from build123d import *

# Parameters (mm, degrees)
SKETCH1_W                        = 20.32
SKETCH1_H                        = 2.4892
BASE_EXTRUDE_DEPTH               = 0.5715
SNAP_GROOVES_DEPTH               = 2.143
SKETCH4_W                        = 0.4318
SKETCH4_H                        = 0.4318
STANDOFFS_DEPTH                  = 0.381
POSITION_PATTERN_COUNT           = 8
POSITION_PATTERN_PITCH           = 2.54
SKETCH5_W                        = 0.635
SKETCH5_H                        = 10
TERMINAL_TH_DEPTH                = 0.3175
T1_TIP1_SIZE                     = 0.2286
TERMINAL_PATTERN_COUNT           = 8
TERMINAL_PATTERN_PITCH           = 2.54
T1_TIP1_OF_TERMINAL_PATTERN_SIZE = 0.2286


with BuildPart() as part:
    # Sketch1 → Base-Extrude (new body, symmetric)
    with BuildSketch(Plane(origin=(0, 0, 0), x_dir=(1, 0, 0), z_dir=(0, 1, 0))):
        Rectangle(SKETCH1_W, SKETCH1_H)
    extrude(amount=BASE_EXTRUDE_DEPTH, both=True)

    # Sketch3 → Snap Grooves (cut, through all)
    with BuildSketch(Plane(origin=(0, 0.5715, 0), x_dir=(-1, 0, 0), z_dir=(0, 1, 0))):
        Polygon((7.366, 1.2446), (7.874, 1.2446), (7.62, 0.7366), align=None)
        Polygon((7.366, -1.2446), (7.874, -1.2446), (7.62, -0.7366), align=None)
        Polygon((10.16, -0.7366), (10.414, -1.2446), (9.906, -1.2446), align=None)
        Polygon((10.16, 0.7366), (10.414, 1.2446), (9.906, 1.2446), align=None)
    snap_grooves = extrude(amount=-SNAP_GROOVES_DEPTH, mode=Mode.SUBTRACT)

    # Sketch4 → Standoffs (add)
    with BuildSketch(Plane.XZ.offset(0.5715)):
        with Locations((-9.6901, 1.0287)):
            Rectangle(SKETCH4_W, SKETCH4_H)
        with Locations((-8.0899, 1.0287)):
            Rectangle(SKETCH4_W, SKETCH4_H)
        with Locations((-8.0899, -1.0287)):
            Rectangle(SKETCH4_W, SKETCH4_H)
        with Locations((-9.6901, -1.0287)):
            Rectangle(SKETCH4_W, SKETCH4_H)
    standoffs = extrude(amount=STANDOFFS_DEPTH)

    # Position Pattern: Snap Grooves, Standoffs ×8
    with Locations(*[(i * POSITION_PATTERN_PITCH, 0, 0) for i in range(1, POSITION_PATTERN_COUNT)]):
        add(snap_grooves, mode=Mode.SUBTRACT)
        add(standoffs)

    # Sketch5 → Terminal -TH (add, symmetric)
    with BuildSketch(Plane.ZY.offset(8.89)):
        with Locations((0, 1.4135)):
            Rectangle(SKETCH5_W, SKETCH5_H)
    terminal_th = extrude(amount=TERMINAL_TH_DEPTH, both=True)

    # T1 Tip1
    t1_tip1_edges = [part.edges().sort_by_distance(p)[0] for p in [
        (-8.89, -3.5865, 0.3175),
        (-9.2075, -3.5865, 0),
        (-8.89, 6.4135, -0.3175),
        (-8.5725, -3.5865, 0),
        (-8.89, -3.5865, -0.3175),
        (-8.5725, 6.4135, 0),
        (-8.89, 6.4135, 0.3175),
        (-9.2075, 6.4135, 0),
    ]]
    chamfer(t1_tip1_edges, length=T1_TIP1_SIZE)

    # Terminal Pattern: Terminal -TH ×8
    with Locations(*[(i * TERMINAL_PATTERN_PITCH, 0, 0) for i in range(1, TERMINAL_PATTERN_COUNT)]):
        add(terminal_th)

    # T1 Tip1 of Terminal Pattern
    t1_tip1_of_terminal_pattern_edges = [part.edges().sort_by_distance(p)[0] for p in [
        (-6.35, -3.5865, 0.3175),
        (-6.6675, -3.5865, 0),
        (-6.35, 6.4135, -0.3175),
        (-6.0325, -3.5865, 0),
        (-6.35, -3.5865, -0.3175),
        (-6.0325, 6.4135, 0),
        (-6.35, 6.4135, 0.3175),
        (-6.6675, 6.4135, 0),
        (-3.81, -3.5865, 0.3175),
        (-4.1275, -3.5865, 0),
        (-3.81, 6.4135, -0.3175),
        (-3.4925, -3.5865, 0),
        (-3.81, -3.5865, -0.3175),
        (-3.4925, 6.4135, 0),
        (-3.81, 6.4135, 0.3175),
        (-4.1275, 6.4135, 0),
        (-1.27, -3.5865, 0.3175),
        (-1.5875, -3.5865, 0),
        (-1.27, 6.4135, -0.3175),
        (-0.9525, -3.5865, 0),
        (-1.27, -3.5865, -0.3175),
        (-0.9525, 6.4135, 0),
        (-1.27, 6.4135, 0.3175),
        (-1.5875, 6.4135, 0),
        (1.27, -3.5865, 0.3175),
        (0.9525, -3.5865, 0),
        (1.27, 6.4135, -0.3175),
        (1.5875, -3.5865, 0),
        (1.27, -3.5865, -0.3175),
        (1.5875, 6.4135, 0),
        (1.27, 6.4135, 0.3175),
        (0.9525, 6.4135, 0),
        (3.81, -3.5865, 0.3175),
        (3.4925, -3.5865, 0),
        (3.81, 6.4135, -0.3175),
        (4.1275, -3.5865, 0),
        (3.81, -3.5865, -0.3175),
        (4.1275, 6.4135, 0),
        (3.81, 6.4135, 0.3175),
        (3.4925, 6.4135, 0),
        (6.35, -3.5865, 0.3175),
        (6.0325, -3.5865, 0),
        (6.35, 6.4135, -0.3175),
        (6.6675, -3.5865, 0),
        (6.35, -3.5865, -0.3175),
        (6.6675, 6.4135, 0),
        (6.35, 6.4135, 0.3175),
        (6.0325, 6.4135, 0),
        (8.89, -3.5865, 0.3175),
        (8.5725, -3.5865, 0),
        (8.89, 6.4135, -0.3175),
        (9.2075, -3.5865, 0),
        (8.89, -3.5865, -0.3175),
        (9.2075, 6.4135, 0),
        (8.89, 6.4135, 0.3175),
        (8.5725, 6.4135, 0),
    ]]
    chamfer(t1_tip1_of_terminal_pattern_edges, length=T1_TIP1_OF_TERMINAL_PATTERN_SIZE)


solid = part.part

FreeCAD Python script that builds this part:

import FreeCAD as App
import Part
import Sketcher

V = App.Vector
Q = App.Units.Quantity


def edges_at(feature, points):
    """Names of the edges that pass closest to the given points."""
    edges = feature.Shape.Edges
    near = lambda p: min(range(len(edges)), key=lambda i: edges[i].distToShape(Part.Vertex(*p))[0])
    return sorted({f"Edge{near(p) + 1}" for p in points})


def add_polygon(sketch, points):
    """Adds a closed chain of lines whose ends are joined by coincident constraints."""
    first, n = sketch.GeometryCount, len(points)
    for a, b in zip(points, points[1:] + points[:1]):
        sketch.addGeometry(Part.LineSegment(App.Vector(*a, 0), App.Vector(*b, 0)), False)
    for i in range(n):
        sketch.addConstraint(Sketcher.Constraint("Coincident", first + i, 2, first + (i + 1) % n, 1))

doc = App.newDocument("Part")
body = doc.addObject("PartDesign::Body", "Body")

sketch1 = doc.addObject("Sketcher::SketchObject", "Sketch")
body.addObject(sketch1)
sketch1.AttachmentSupport = (doc.XZ_Plane, [""])
sketch1.MapMode = "FlatFace"
add_polygon(sketch1, [(-10.2, -1.2), (-10.2, 1.2), (10.2, 1.2), (10.2, -1.2)])
sketch1.addConstraint([
    Sketcher.Constraint("Vertical", 0),
    Sketcher.Constraint("Horizontal", 1),
    Sketcher.Constraint("Vertical", 2),
    Sketcher.Constraint("Horizontal", 3),
    Sketcher.Constraint("Symmetric", 0, 2, 2, 2, -1, 1),
    Sketcher.Constraint("DistanceX", 1, 1, 1, 2, Q("0.8 in")),
    Sketcher.Constraint("DistanceY", 0, 1, 0, 2, Q("0.098 in")),
])
pad1 = doc.addObject("PartDesign::Pad", "Pad")
body.addObject(pad1)
pad1.Profile = sketch1
pad1.Length = Q("0.045 in")
pad1.Midplane = True

sketch2 = doc.addObject("Sketcher::SketchObject", "Sketch001")
body.addObject(sketch2)
sketch2.AttachmentSupport = (doc.XZ_Plane, [""])
sketch2.MapMode = "FlatFace"
sketch2.AttachmentOffset = App.Placement(V(0, 0, -0.0225 * 25.4), App.Rotation())
add_polygon(sketch2, [(-7.9, 1.2), (-7.4, 1.2), (-7.6, 0.7)])
add_polygon(sketch2, [(-7.4, -1.2), (-7.9, -1.2), (-7.6, -0.7)])
add_polygon(sketch2, [(-10.4, -1.2), (-10.2, -0.7), (-9.9, -1.2)])
add_polygon(sketch2, [(-10.2, 0.7), (-10.4, 1.2), (-9.9, 1.2)])
sketch2.addConstraint([
    Sketcher.Constraint("Horizontal", 0),
    Sketcher.Constraint("Horizontal", 3),
    Sketcher.Constraint("Horizontal", 8),
    Sketcher.Constraint("Horizontal", 10),
    Sketcher.Constraint("Symmetric", 2, 2, 3, 2, -1),
    Sketcher.Constraint("Symmetric", 1, 2, 4, 2, -1),
    Sketcher.Constraint("Symmetric", 8, 2, 9, 2, -1),
    Sketcher.Constraint("Symmetric", 6, 2, 11, 2, -1),
    Sketcher.Constraint("Parallel", 1, 4),
    Sketcher.Constraint("Parallel", 2, 5),
    Sketcher.Constraint("Parallel", 4, 6),
    Sketcher.Constraint("Parallel", 5, 7),
    Sketcher.Constraint("Parallel", 6, 11),
    Sketcher.Constraint("Horizontal", 4, 2, 6, 2),
    Sketcher.Constraint("Horizontal", 5, 2, 7, 2),
    Sketcher.Constraint("DistanceX", 0, 1, 0, 2, Q("0.02 in")),
    Sketcher.Constraint("DistanceX", 1, 2, -1, 1, Q("0.3 in")),
    Sketcher.Constraint("DistanceX", 6, 2, -1, 1, Q("0.4 in")),
    Sketcher.Constraint("DistanceY", 1, 2, 0, 2, Q("0.02 in")),
    Sketcher.Constraint("DistanceY", -1, 1, 0, 2, Q("0.049 in")),
])
pocket1 = doc.addObject("PartDesign::Pocket", "Pocket")
body.addObject(pocket1)
pocket1.Profile = sketch2
pocket1.Type = "ThroughAll"
pocket1.Reversed = True

sketch3 = doc.addObject("Sketcher::SketchObject", "Sketch002")
body.addObject(sketch3)
sketch3.AttachmentSupport = (doc.XZ_Plane, [""])
sketch3.MapMode = "FlatFace"
sketch3.AttachmentOffset = App.Placement(V(0, 0, 0.0225 * 25.4), App.Rotation())
add_polygon(sketch3, [(-9.91, 1.24), (-9.91, 0.81), (-9.47, 0.81), (-9.47, 1.24)])
add_polygon(sketch3, [(-8.31, 1.24), (-8.31, 0.81), (-7.87, 0.81), (-7.87, 1.24)])
add_polygon(sketch3, [(-8.31, -0.81), (-8.31, -1.24), (-7.87, -1.24), (-7.87, -0.81)])
add_polygon(sketch3, [(-9.91, -0.81), (-9.91, -1.24), (-9.47, -1.24), (-9.47, -0.81)])
sketch3.addConstraint([
    Sketcher.Constraint("Vertical", 0),
    Sketcher.Constraint("Horizontal", 1),
    Sketcher.Constraint("Vertical", 2),
    Sketcher.Constraint("Horizontal", 3),
    Sketcher.Constraint("Vertical", 4),
    Sketcher.Constraint("Horizontal", 5),
    Sketcher.Constraint("Vertical", 6),
    Sketcher.Constraint("Horizontal", 7),
    Sketcher.Constraint("Vertical", 8),
    Sketcher.Constraint("Horizontal", 9),
    Sketcher.Constraint("Vertical", 10),
    Sketcher.Constraint("Horizontal", 11),
    Sketcher.Constraint("Vertical", 12),
    Sketcher.Constraint("Horizontal", 13),
    Sketcher.Constraint("Vertical", 14),
    Sketcher.Constraint("Horizontal", 15),
    Sketcher.Constraint("Symmetric", 7, 2, 8, 2, -1),
    Sketcher.Constraint("Symmetric", 5, 2, 10, 2, -1),
    Sketcher.Constraint("Symmetric", 3, 2, 12, 2, -1),
    Sketcher.Constraint("Symmetric", 1, 2, 14, 2, -1),
    Sketcher.Constraint("Horizontal", 1, 2, 4, 2),
    Sketcher.Constraint("Horizontal", 3, 2, 6, 2),
    Sketcher.Constraint("Equal", 3, 5),
    Sketcher.Constraint("Equal", 15, 0),
    Sketcher.Constraint("DistanceX", 1, 1, 1, 2, Q("0.017 in")),
    Sketcher.Constraint("DistanceX", 0, 2, -1, 1, Q("0.39 in")),
    Sketcher.Constraint("DistanceX", 5, 2, -1, 1, Q("0.31 in")),
    Sketcher.Constraint("DistanceY", -1, 1, 0, 2, Q("0.032 in")),
])
pad2 = doc.addObject("PartDesign::Pad", "Pad001")
body.addObject(pad2)
pad2.Profile = sketch3
pad2.Length = Q("0.015 in")
doc.recompute()

linearpattern = doc.addObject("PartDesign::LinearPattern", "LinearPattern")
body.addObject(linearpattern)
linearpattern.Originals = [pocket1, pad2]
linearpattern.Direction = (doc.X_Axis, [""])
linearpattern.Mode = "offset"
linearpattern.Offset = Q("0.1 in")
linearpattern.Occurrences = 8
body.Tip = linearpattern

sketch4 = doc.addObject("Sketcher::SketchObject", "Sketch003")
body.addObject(sketch4)
sketch4.AttachmentSupport = (doc.YZ_Plane, [""])
sketch4.MapMode = "FlatFace"
sketch4.AttachmentOffset = App.Placement(V(0, 0, -0.35 * 25.4), App.Rotation())
add_polygon(sketch4, [(6.4, -0.3), (-3.6, -0.3), (-3.6, 0.3), (6.4, 0.3)])
sketch4.addConstraint([
    Sketcher.Constraint("Horizontal", 0),
    Sketcher.Constraint("Vertical", 1),
    Sketcher.Constraint("Horizontal", 2),
    Sketcher.Constraint("Vertical", 3),
    Sketcher.Constraint("DistanceY", 1, 1, 1, 2, Q("0.025 in")),
    Sketcher.Constraint("DistanceX", 0, 2, 0, 1, 10.0),
    Sketcher.Constraint("DistanceY", 0, 2, -1, 1, Q("0.0125 in")),
    Sketcher.Constraint("DistanceX", -1, 1, 2, 2, Q("0.2525 in")),
])
pad3 = doc.addObject("PartDesign::Pad", "Pad002")
body.addObject(pad3)
pad3.Profile = sketch4
pad3.Length = Q("0.025 in")
pad3.Midplane = True
doc.recompute()

chamfer = doc.addObject("PartDesign::Chamfer", "Chamfer")
body.addObject(chamfer)
chamfer.Base = (pad3, edges_at(pad3, [
    (-8.89, -3.587, 0.318),
    (-9.207, -3.587, 0),
    (-8.89, 6.413, -0.318),
    (-8.572, -3.587, 0),
    (-8.89, -3.587, -0.318),
    (-8.572, 6.413, 0),
    (-8.89, 6.413, 0.318),
    (-9.207, 6.413, 0),
]))
chamfer.Size = Q("0.009 in")
doc.recompute()

linearpattern2 = doc.addObject("PartDesign::LinearPattern", "LinearPattern001")
body.addObject(linearpattern2)
linearpattern2.Originals = [pad3]
linearpattern2.Direction = (doc.X_Axis, [""])
linearpattern2.Mode = "offset"
linearpattern2.Offset = Q("0.1 in")
linearpattern2.Occurrences = 8
body.Tip = linearpattern2
doc.recompute()

chamfer2 = doc.addObject("PartDesign::Chamfer", "Chamfer001")
body.addObject(chamfer2)
chamfer2.Base = (linearpattern2, edges_at(linearpattern2, [
    (-6.35, -3.587, 0.318),
    (-6.668, -3.587, 0),
    (-6.35, 6.413, -0.318),
    (-6.032, -3.587, 0),
    (-6.35, -3.587, -0.318),
    (-6.032, 6.413, 0),
    (-6.35, 6.413, 0.318),
    (-6.668, 6.413, 0),
    (-3.81, -3.587, 0.318),
    (-4.128, -3.587, 0),
    (-3.81, 6.413, -0.318),
    (-3.493, -3.587, 0),
    (-3.81, -3.587, -0.318),
    (-3.493, 6.413, 0),
    (-3.81, 6.413, 0.318),
    (-4.128, 6.413, 0),
    (-1.27, -3.587, 0.318),
    (-1.587, -3.587, 0),
    (-1.27, 6.413, -0.318),
    (-0.953, -3.587, 0),
    (-1.27, -3.587, -0.318),
    (-0.953, 6.413, 0),
    (-1.27, 6.413, 0.318),
    (-1.587, 6.413, 0),
    (1.27, -3.587, 0.318),
    (0.953, -3.587, 0),
    (1.27, 6.413, -0.318),
    (1.587, -3.587, 0),
    (1.27, -3.587, -0.318),
    (1.587, 6.413, 0),
    (1.27, 6.413, 0.318),
    (0.953, 6.413, 0),
    (3.81, -3.587, 0.318),
    (3.493, -3.587, 0),
    (3.81, 6.413, -0.318),
    (4.128, -3.587, 0),
    (3.81, -3.587, -0.318),
    (4.128, 6.413, 0),
    (3.81, 6.413, 0.318),
    (3.493, 6.413, 0),
    (6.35, -3.587, 0.318),
    (6.032, -3.587, 0),
    (6.35, 6.413, -0.318),
    (6.668, -3.587, 0),
    (6.35, -3.587, -0.318),
    (6.668, 6.413, 0),
    (6.35, 6.413, 0.318),
    (6.032, 6.413, 0),
    (8.89, -3.587, 0.318),
    (8.572, -3.587, 0),
    (8.89, 6.413, -0.318),
    (9.207, -3.587, 0),
    (8.89, -3.587, -0.318),
    (9.207, 6.413, 0),
    (8.89, 6.413, 0.318),
    (8.572, 6.413, 0),
]))
chamfer2.Size = Q("0.009 in")

doc.recompute()
